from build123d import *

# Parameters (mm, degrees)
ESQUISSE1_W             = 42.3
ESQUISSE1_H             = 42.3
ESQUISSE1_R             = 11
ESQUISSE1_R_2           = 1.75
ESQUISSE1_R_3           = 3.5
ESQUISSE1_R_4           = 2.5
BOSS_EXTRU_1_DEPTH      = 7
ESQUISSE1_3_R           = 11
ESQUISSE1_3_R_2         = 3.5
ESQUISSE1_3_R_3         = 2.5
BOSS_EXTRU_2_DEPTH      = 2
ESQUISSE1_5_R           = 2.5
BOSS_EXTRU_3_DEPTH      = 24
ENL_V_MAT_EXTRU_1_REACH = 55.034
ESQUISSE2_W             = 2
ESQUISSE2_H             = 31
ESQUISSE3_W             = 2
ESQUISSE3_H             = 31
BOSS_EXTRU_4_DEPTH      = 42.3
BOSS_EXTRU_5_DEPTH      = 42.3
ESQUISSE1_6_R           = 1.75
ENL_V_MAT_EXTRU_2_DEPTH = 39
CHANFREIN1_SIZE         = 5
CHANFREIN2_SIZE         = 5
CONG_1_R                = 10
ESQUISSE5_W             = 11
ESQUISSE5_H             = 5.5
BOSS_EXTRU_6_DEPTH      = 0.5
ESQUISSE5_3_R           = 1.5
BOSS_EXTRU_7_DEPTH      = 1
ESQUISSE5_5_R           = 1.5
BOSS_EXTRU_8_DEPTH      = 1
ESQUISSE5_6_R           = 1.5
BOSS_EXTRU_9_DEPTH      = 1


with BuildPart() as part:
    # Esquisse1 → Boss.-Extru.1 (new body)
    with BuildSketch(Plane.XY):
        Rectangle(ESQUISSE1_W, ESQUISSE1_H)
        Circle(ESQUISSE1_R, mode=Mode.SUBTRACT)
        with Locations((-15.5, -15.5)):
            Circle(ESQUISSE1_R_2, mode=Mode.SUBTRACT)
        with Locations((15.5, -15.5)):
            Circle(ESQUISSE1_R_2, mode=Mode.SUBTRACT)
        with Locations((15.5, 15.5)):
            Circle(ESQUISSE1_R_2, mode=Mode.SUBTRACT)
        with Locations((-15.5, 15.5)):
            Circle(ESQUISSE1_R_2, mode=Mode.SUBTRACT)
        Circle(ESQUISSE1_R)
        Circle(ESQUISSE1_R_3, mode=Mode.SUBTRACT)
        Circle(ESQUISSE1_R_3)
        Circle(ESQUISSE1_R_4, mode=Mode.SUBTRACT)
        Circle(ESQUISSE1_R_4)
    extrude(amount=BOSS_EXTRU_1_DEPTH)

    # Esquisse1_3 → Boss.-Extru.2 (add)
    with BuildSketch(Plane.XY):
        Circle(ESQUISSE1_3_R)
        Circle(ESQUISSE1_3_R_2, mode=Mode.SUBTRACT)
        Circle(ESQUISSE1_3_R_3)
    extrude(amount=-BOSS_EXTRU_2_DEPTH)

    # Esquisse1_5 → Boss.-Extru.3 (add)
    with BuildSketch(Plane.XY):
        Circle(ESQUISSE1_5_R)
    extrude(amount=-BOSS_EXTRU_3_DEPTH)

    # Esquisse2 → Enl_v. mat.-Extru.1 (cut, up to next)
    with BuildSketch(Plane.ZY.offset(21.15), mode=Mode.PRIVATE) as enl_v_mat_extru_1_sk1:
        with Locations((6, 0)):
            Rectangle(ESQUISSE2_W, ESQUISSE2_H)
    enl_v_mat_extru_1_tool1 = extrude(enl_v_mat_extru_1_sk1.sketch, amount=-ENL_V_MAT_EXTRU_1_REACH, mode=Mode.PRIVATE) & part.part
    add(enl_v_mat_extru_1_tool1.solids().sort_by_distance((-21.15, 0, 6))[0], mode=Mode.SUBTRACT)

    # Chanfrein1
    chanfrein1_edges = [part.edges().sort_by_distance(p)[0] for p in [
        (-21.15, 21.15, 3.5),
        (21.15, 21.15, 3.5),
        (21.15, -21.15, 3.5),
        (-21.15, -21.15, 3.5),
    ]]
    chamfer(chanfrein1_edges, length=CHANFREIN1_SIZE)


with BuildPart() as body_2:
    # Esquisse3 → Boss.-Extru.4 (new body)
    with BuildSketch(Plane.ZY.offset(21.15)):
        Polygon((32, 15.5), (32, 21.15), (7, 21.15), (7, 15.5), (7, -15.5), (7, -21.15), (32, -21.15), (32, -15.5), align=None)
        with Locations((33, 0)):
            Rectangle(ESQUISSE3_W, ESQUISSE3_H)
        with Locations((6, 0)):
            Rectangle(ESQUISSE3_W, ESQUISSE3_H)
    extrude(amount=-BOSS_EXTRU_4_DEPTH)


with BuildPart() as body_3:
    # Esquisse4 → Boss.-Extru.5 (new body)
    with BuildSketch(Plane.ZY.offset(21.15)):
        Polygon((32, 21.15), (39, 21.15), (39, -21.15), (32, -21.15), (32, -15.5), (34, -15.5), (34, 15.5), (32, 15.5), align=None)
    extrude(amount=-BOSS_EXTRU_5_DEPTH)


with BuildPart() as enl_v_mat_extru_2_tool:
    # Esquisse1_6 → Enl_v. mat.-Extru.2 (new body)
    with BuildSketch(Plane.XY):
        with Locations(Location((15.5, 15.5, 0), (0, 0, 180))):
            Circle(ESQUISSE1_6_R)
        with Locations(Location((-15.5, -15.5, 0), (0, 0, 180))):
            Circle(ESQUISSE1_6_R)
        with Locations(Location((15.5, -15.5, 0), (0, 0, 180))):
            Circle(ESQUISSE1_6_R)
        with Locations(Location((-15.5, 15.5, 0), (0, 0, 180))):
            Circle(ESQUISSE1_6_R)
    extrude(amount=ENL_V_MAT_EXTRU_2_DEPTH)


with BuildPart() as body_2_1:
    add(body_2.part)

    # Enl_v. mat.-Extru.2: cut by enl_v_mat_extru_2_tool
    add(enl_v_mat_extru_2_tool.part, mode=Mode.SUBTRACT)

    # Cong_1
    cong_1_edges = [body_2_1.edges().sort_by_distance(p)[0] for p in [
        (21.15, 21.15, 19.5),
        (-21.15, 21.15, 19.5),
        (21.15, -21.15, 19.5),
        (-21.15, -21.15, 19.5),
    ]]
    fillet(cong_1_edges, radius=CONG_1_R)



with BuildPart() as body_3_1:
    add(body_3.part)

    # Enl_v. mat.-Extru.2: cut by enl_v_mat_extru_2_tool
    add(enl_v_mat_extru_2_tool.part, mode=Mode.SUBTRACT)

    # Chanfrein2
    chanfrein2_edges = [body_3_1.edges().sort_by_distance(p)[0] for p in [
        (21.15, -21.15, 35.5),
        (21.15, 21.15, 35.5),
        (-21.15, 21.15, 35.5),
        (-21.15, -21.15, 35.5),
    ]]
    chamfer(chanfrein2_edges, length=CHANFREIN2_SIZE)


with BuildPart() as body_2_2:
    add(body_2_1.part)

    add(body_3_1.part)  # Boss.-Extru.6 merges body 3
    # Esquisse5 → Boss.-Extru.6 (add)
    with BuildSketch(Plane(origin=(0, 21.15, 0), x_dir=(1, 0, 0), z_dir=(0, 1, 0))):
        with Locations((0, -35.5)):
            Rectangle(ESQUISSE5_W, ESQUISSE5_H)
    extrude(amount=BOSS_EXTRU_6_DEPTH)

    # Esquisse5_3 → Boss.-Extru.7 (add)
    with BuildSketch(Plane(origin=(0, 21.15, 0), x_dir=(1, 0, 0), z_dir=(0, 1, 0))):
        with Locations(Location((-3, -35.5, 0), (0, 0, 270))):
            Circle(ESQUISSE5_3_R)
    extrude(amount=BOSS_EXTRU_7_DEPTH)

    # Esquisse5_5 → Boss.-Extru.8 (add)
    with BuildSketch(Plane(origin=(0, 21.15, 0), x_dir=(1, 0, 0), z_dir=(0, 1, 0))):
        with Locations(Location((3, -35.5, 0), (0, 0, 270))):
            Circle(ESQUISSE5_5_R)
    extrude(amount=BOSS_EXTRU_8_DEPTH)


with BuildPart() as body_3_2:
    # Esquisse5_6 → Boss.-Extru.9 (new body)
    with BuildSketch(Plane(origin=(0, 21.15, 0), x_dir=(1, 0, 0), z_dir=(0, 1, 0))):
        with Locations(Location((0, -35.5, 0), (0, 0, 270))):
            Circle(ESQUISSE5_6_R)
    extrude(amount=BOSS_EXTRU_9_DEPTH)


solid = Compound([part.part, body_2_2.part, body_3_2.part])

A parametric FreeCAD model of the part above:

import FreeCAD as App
import Part
import Sketcher
from FreeCAD import Vector
Q = App.Units.Quantity


def edges_at(feature, points):
    """Names of the edges that pass closest to the given points."""
    edges = feature.Shape.Edges
    near = lambda p: min(range(len(edges)), key=lambda i: edges[i].distToShape(Part.Vertex(*p))[0])
    return sorted({f"Edge{near(p) + 1}" for p in points})

doc = App.newDocument("Part")
params = doc.addObject("Spreadsheet::Sheet", "Params")
for row, (alias, value) in enumerate([
    ("sketch1_diameter", "3.5 mm"),
    ("sketch1_width", "42.3 mm"),
    ("pad1_length", "7 mm"),
    ("sketch2_diameter", "22 mm"),
    ("sketch2_diameter2", "7 mm"),
    ("sketch2_diameter3", "5 mm"),
    ("pad2_length", "2 mm"),
    ("sketch3_diameter", "5 mm"),
    ("pad3_length", "24 mm"),
    ("sketch4_width", "31 mm"),
    ("sketch4_height", "2 mm"),
    ("chamfer_size", "5 mm"),
    ("sketch5_width", "31 mm"),
    ("sketch5_height", "25 mm"),
    ("sketch5_height2", "2 mm"),
    ("sketch5_width2", "5.65 mm"),
    ("pad4_length", "42.3 mm"),
    ("sketch6_width", "31 mm"),
    ("sketch6_height", "7 mm"),
    ("sketch6_height2", "2 mm"),
    ("sketch6_width2", "42.3 mm"),
    ("pad5_length", "42.3 mm"),
    ("sketch7_diameter", "3.5 mm"),
    ("pad6_length", "39 mm"),
    ("fillet_radius", "10 mm"),
    ("chamfer2_size", "5 mm"),
    ("sketch8_width", "11 mm"),
    ("sketch8_height", "5.5 mm"),
    ("pad7_length", "0.5 mm"),
    ("sketch9_diameter", "3 mm"),
    ("pad8_length", "1 mm"),
    ("sketch10_diameter", "3 mm"),
    ("pad9_length", "1 mm"),
    ("sketch11_diameter", "3 mm"),
    ("pad10_length", "1 mm"),
], start=1):
    params.set(f"A{row}", alias)
    params.set(f"B{row}", "=" + value)
    params.setAlias(f"B{row}", alias)

body = doc.addObject("PartDesign::Body", "Body")

sketch1 = doc.addObject("Sketcher::SketchObject", "Sketch")
body.addObject(sketch1)
sketch1.AttachmentSupport = (doc.XY_Plane, [""])
sketch1.MapMode = "FlatFace"
sketch1.addGeometry(Part.LineSegment(Vector(-21.1, 21.1, 0), Vector(-21.1, -21.1, 0)), False)
sketch1.addGeometry(Part.LineSegment(Vector(-21.1, -21.1, 0), Vector(21.1, -21.1, 0)), False)
sketch1.addGeometry(Part.LineSegment(Vector(21.1, -21.1, 0), Vector(21.1, 21.1, 0)), False)
sketch1.addGeometry(Part.LineSegment(Vector(21.1, 21.1, 0), Vector(-21.1, 21.1, 0)), False)
sketch1.addGeometry(Part.Circle(Vector(-15.5, -15.5, 0), Vector(0, 0, 1), 1.8), False)
sketch1.addGeometry(Part.Circle(Vector(15.5, -15.5, 0), Vector(0, 0, 1), 1.8), False)
sketch1.addGeometry(Part.Circle(Vector(-15.5, 15.5, 0), Vector(0, 0, 1), 1.8), False)
sketch1.addGeometry(Part.Circle(Vector(15.5, 15.5, 0), Vector(0, 0, 1), 1.8), False)
sketch1.addConstraint(Sketcher.Constraint("Coincident", 0, 2, 1, 1))
sketch1.addConstraint(Sketcher.Constraint("Coincident", 1, 2, 2, 1))
sketch1.addConstraint(Sketcher.Constraint("Coincident", 2, 2, 3, 1))
sketch1.addConstraint(Sketcher.Constraint("Coincident", 3, 2, 0, 1))
sketch1.addConstraint(Sketcher.Constraint("Vertical", 0))
sketch1.addConstraint(Sketcher.Constraint("Horizontal", 1))
sketch1.addConstraint(Sketcher.Constraint("Vertical", 2))
sketch1.addConstraint(Sketcher.Constraint("Horizontal", 3))
sketch1.addConstraint(Sketcher.Constraint("Equal", 4, 5))
sketch1.addConstraint(Sketcher.Constraint("Equal", 5, 6))
sketch1.addConstraint(Sketcher.Constraint("Equal", 6, 7))
sketch1.addConstraint(Sketcher.Constraint("Symmetric", 5, 3, 6, 3, -1, 1))
sketch1.addConstraint(Sketcher.Constraint("Symmetric", 4, 3, 7, 3, -1, 1))
sketch1.addConstraint(Sketcher.Constraint("Symmetric", 0, 2, 2, 2, -1, 1))
sketch1.addConstraint(Sketcher.Constraint("Symmetric", 4, 3, 5, 3, -2))
sketch1.addConstraint(Sketcher.Constraint("Equal", 3, 0))
sketch1.addConstraint(Sketcher.Constraint("Diameter", 4, Q("3.5 mm")))
sketch1.addConstraint(Sketcher.Constraint("DistanceX", 1, 1, 1, 2, Q("42.3 mm")))
sketch1.addConstraint(Sketcher.Constraint("DistanceX", 4, 3, 5, 3, Q("31 mm")))
sketch1.addConstraint(Sketcher.Constraint("DistanceY", 4, 3, 6, 3, Q("31 mm")))
sketch1.setExpression("Constraints[16]", "Params.sketch1_diameter")
sketch1.setExpression("Constraints[17]", "Params.sketch1_width")
pad1 = doc.addObject("PartDesign::Pad", "Pad")
body.addObject(pad1)
pad1.Profile = sketch1
pad1.setExpression("Length", "Params.pad1_length")

sketch2 = doc.addObject("Sketcher::SketchObject", "Sketch001")
body.addObject(sketch2)
sketch2.AttachmentSupport = (doc.XY_Plane, [""])
sketch2.MapMode = "FlatFace"
sketch2.addGeometry(Part.Circle(Vector(0, 0, 0), Vector(0, 0, 1), 11), False)
sketch2.addGeometry(Part.Circle(Vector(0, 0, 0), Vector(0, 0, 1), 3.5), False)
sketch2.addGeometry(Part.Circle(Vector(0, 0, 0), Vector(0, 0, 1), 2.5), False)
sketch2.addConstraint(Sketcher.Constraint("Coincident", 0, 3, -1, 1))
sketch2.addConstraint(Sketcher.Constraint("Coincident", 1, 3, -1, 1))
sketch2.addConstraint(Sketcher.Constraint("Coincident", 2, 3, -1, 1))
sketch2.addConstraint(Sketcher.Constraint("Diameter", 0, Q("22 mm")))
sketch2.addConstraint(Sketcher.Constraint("Diameter", 1, Q("7 mm")))
sketch2.addConstraint(Sketcher.Constraint("Diameter", 2, Q("5 mm")))
sketch2.setExpression("Constraints[3]", "Params.sketch2_diameter")
sketch2.setExpression("Constraints[4]", "Params.sketch2_diameter2")
sketch2.setExpression("Constraints[5]", "Params.sketch2_diameter3")
pad2 = doc.addObject("PartDesign::Pad", "Pad001")
body.addObject(pad2)
pad2.Profile = sketch2
pad2.setExpression("Length", "Params.pad2_length")
pad2.Reversed = True

sketch3 = doc.addObject("Sketcher::SketchObject", "Sketch002")
body.addObject(sketch3)
sketch3.AttachmentSupport = (doc.XY_Plane, [""])
sketch3.MapMode = "FlatFace"
sketch3.addGeometry(Part.Circle(Vector(0, 0, 0), Vector(0, 0, 1), 2.5), False)
sketch3.addConstraint(Sketcher.Constraint("Coincident", 0, 3, -1, 1))
sketch3.addConstraint(Sketcher.Constraint("Diameter", 0, Q("5 mm")))
sketch3.setExpression("Constraints[1]", "Params.sketch3_diameter")
pad3 = doc.addObject("PartDesign::Pad", "Pad002")
body.addObject(pad3)
pad3.Profile = sketch3
pad3.setExpression("Length", "Params.pad3_length")
pad3.Reversed = True

sketch4 = doc.addObject("Sketcher::SketchObject", "Sketch003")
body.addObject(sketch4)
sketch4.AttachmentSupport = (doc.YZ_Plane, [""])
sketch4.MapMode = "FlatFace"
sketch4.AttachmentOffset = App.Placement(Vector(0, 0, -21.15), App.Rotation())
sketch4.addGeometry(Part.LineSegment(Vector(15.5, 5, 0), Vector(-15.5, 5, 0)), False)
sketch4.addGeometry(Part.LineSegment(Vector(-15.5, 5, 0), Vector(-15.5, 7, 0)), False)
sketch4.addGeometry(Part.LineSegment(Vector(-15.5, 7, 0), Vector(15.5, 7, 0)), False)
sketch4.addGeometry(Part.LineSegment(Vector(15.5, 7, 0), Vector(15.5, 5, 0)), False)
sketch4.addConstraint(Sketcher.Constraint("Coincident", 0, 2, 1, 1))
sketch4.addConstraint(Sketcher.Constraint("Coincident", 1, 2, 2, 1))
sketch4.addConstraint(Sketcher.Constraint("Coincident", 2, 2, 3, 1))
sketch4.addConstraint(Sketcher.Constraint("Coincident", 3, 2, 0, 1))
sketch4.addConstraint(Sketcher.Constraint("Horizontal", 0))
sketch4.addConstraint(Sketcher.Constraint("Vertical", 1))
sketch4.addConstraint(Sketcher.Constraint("Horizontal", 2))
sketch4.addConstraint(Sketcher.Constraint("Vertical", 3))
sketch4.addConstraint(Sketcher.Constraint("DistanceX", 0, 2, 0, 1, Q("31 mm")))
sketch4.addConstraint(Sketcher.Constraint("DistanceY", 1, 1, 1, 2, Q("2 mm")))
sketch4.addConstraint(Sketcher.Constraint("DistanceY", -1, 1, 0, 2, Q("5 mm")))
sketch4.addConstraint(Sketcher.Constraint("DistanceX", 0, 2, -1, 1, Q("15.5 mm")))
sketch4.setExpression("Constraints[8]", "Params.sketch4_width")
sketch4.setExpression("Constraints[9]", "Params.sketch4_height")
pocket1 = doc.addObject("PartDesign::Pocket", "Pocket")
body.addObject(pocket1)
pocket1.Profile = sketch4
pocket1.Type = "UpToFirst"
pocket1.Reversed = True
doc.recompute()

chamfer = doc.addObject("PartDesign::Chamfer", "Chamfer")
body.addObject(chamfer)
chamfer.Base = (pocket1, edges_at(pocket1, [
    (-21.15, 21.15, 3.5),
    (21.15, 21.15, 3.5),
    (21.15, -21.15, 3.5),
    (-21.15, -21.15, 3.5),
]))
chamfer.setExpression("Size", "Params.chamfer_size")
body2 = doc.addObject("PartDesign::Body", "Body001")

sketch5 = doc.addObject("Sketcher::SketchObject", "Sketch004")
body2.addObject(sketch5)
sketch5.AttachmentSupport = (doc.getObject("YZ_Plane001"), [""])
sketch5.MapMode = "FlatFace"
sketch5.AttachmentOffset = App.Placement(Vector(0, 0, -21.15), App.Rotation())
sketch5.addGeometry(Part.LineSegment(Vector(21.1, 32, 0), Vector(21.1, 7, 0)), False)
sketch5.addGeometry(Part.LineSegment(Vector(21.1, 7, 0), Vector(15.5, 7, 0)), False)
sketch5.addGeometry(Part.LineSegment(Vector(15.5, 7, 0), Vector(15.5, 5, 0)), False)
sketch5.addGeometry(Part.LineSegment(Vector(15.5, 5, 0), Vector(-15.5, 5, 0)), False)
sketch5.addGeometry(Part.LineSegment(Vector(-15.5, 5, 0), Vector(-15.5, 7, 0)), False)
sketch5.addGeometry(Part.LineSegment(Vector(-15.5, 7, 0), Vector(-21.1, 7, 0)), False)
sketch5.addGeometry(Part.LineSegment(Vector(-21.1, 7, 0), Vector(-21.1, 32, 0)), False)
sketch5.addGeometry(Part.LineSegment(Vector(-21.1, 32, 0), Vector(-15.5, 32, 0)), False)
sketch5.addGeometry(Part.LineSegment(Vector(-15.5, 32, 0), Vector(-15.5, 34, 0)), False)
sketch5.addGeometry(Part.LineSegment(Vector(-15.5, 34, 0), Vector(15.5, 34, 0)), False)
sketch5.addGeometry(Part.LineSegment(Vector(15.5, 34, 0), Vector(15.5, 32, 0)), False)
sketch5.addGeometry(Part.LineSegment(Vector(15.5, 32, 0), Vector(21.1, 32, 0)), False)
sketch5.addConstraint(Sketcher.Constraint("Coincident", 0, 2, 1, 1))
sketch5.addConstraint(Sketcher.Constraint("Coincident", 1, 2, 2, 1))
sketch5.addConstraint(Sketcher.Constraint("Coincident", 2, 2, 3, 1))
sketch5.addConstraint(Sketcher.Constraint("Coincident", 3, 2, 4, 1))
sketch5.addConstraint(Sketcher.Constraint("Coincident", 4, 2, 5, 1))
sketch5.addConstraint(Sketcher.Constraint("Coincident", 5, 2, 6, 1))
sketch5.addConstraint(Sketcher.Constraint("Coincident", 6, 2, 7, 1))
sketch5.addConstraint(Sketcher.Constraint("Coincident", 7, 2, 8, 1))
sketch5.addConstraint(Sketcher.Constraint("Coincident", 8, 2, 9, 1))
sketch5.addConstraint(Sketcher.Constraint("Coincident", 9, 2, 10, 1))
sketch5.addConstraint(Sketcher.Constraint("Coincident", 10, 2, 11, 1))
sketch5.addConstraint(Sketcher.Constraint("Coincident", 11, 2, 0, 1))
sketch5.addConstraint(Sketcher.Constraint("Vertical", 0))
sketch5.addConstraint(Sketcher.Constraint("Horizontal", 1))
sketch5.addConstraint(Sketcher.Constraint("Vertical", 2))
sketch5.addConstraint(Sketcher.Constraint("Horizontal", 3))
sketch5.addConstraint(Sketcher.Constraint("Vertical", 4))
sketch5.addConstraint(Sketcher.Constraint("Horizontal", 5))
sketch5.addConstraint(Sketcher.Constraint("Vertical", 6))
sketch5.addConstraint(Sketcher.Constraint("Horizontal", 7))
sketch5.addConstraint(Sketcher.Constraint("Vertical", 8))
sketch5.addConstraint(Sketcher.Constraint("Horizontal", 9))
sketch5.addConstraint(Sketcher.Constraint("Vertical", 10))
sketch5.addConstraint(Sketcher.Constraint("Horizontal", 11))
sketch5.addConstraint(Sketcher.Constraint("Symmetric", 1, 2, 4, 2, -2))
sketch5.addConstraint(Sketcher.Constraint("Symmetric", 7, 2, 10, 2, -2))
sketch5.addConstraint(Sketcher.Constraint("Vertical", 4, 2, 7, 2))
sketch5.addConstraint(Sketcher.Constraint("Equal", 1, 5))
sketch5.addConstraint(Sketcher.Constraint("Equal", 4, 8))
sketch5.addConstraint(Sketcher.Constraint("DistanceX", 3, 2, 3, 1, Q("31 mm")))
sketch5.addConstraint(Sketcher.Constraint("DistanceY", 0, 2, 0, 1, Q("25 mm")))
sketch5.addConstraint(Sketcher.Constraint("DistanceY", 2, 2, 2, 1, Q("2 mm")))
sketch5.addConstraint(Sketcher.Constraint("DistanceY", -1, 1, 0, 2, Q("7 mm")))
sketch5.addConstraint(Sketcher.Constraint("DistanceX", 1, 2, 1, 1, Q("5.65 mm")))
sketch5.setExpression("Constraints[29]", "Params.sketch5_width")
sketch5.setExpression("Constraints[30]", "Params.sketch5_height")
sketch5.setExpression("Constraints[31]", "Params.sketch5_height2")
sketch5.setExpression("Constraints[33]", "Params.sketch5_width2")
pad4 = doc.addObject("PartDesign::Pad", "Pad003")
body2.addObject(pad4)
pad4.Profile = sketch5
pad4.setExpression("Length", "Params.pad4_length")
body3 = doc.addObject("PartDesign::Body", "Body002")

sketch6 = doc.addObject("Sketcher::SketchObject", "Sketch005")
body3.addObject(sketch6)
sketch6.AttachmentSupport = (doc.getObject("YZ_Plane002"), [""])
sketch6.MapMode = "FlatFace"
sketch6.AttachmentOffset = App.Placement(Vector(0, 0, -21.15), App.Rotation())
sketch6.addGeometry(Part.LineSegment(Vector(21.1, 39, 0), Vector(21.1, 32, 0)), False)
sketch6.addGeometry(Part.LineSegment(Vector(21.1, 32, 0), Vector(15.5, 32, 0)), False)
sketch6.addGeometry(Part.LineSegment(Vector(15.5, 32, 0), Vector(15.5, 34, 0)), False)
sketch6.addGeometry(Part.LineSegment(Vector(15.5, 34, 0), Vector(-15.5, 34, 0)), False)
sketch6.addGeometry(Part.LineSegment(Vector(-15.5, 34, 0), Vector(-15.5, 32, 0)), False)
sketch6.addGeometry(Part.LineSegment(Vector(-15.5, 32, 0), Vector(-21.1, 32, 0)), False)
sketch6.addGeometry(Part.LineSegment(Vector(-21.1, 32, 0), Vector(-21.1, 39, 0)), False)
sketch6.addGeometry(Part.LineSegment(Vector(-21.1, 39, 0), Vector(21.1, 39, 0)), False)
sketch6.addConstraint(Sketcher.Constraint("Coincident", 0, 2, 1, 1))
sketch6.addConstraint(Sketcher.Constraint("Coincident", 1, 2, 2, 1))
sketch6.addConstraint(Sketcher.Constraint("Coincident", 2, 2, 3, 1))
sketch6.addConstraint(Sketcher.Constraint("Coincident", 3, 2, 4, 1))
sketch6.addConstraint(Sketcher.Constraint("Coincident", 4, 2, 5, 1))
sketch6.addConstraint(Sketcher.Constraint("Coincident", 5, 2, 6, 1))
sketch6.addConstraint(Sketcher.Constraint("Coincident", 6, 2, 7, 1))
sketch6.addConstraint(Sketcher.Constraint("Coincident", 7, 2, 0, 1))
sketch6.addConstraint(Sketcher.Constraint("Vertical", 0))
sketch6.addConstraint(Sketcher.Constraint("Horizontal", 1))
sketch6.addConstraint(Sketcher.Constraint("Vertical", 2))
sketch6.addConstraint(Sketcher.Constraint("Horizontal", 3))
sketch6.addConstraint(Sketcher.Constraint("Vertical", 4))
sketch6.addConstraint(Sketcher.Constraint("Horizontal", 5))
sketch6.addConstraint(Sketcher.Constraint("Vertical", 6))
sketch6.addConstraint(Sketcher.Constraint("Horizontal", 7))
sketch6.addConstraint(Sketcher.Constraint("Symmetric", 1, 2, 4, 2, -2))
sketch6.addConstraint(Sketcher.Constraint("Equal", 1, 5))
sketch6.addConstraint(Sketcher.Constraint("DistanceX", 3, 2, 3, 1, Q("31 mm")))
sketch6.addConstraint(Sketcher.Constraint("DistanceY", 0, 2, 0, 1, Q("7 mm")))
sketch6.addConstraint(Sketcher.Constraint("DistanceY", 2, 1, 2, 2, Q("2 mm")))
sketch6.addConstraint(Sketcher.Constraint("DistanceX", 7, 1, 7, 2, Q("42.3 mm")))
sketch6.addConstraint(Sketcher.Constraint("DistanceY", -1, 1, 0, 2, Q("32 mm")))
sketch6.setExpression("Constraints[18]", "Params.sketch6_width")
sketch6.setExpression("Constraints[19]", "Params.sketch6_height")
sketch6.setExpression("Constraints[20]", "Params.sketch6_height2")
sketch6.setExpression("Constraints[21]", "Params.sketch6_width2")
pad5 = doc.addObject("PartDesign::Pad", "Pad004")
body3.addObject(pad5)
pad5.Profile = sketch6
pad5.setExpression("Length", "Params.pad5_length")
body4 = doc.addObject("PartDesign::Body", "Body003")
body4.AllowCompound = True

sketch7 = doc.addObject("Sketcher::SketchObject", "Sketch006")
body4.addObject(sketch7)
sketch7.AttachmentSupport = (doc.getObject("XY_Plane003"), [""])
sketch7.MapMode = "FlatFace"
sketch7.addGeometry(Part.Circle(Vector(15.5, 15.5, 0), Vector(0, 0, 1), 1.8), False)
sketch7.addGeometry(Part.Circle(Vector(-15.5, -15.5, 0), Vector(0, 0, 1), 1.8), False)
sketch7.addGeometry(Part.Circle(Vector(15.5, -15.5, 0), Vector(0, 0, 1), 1.8), False)
sketch7.addGeometry(Part.Circle(Vector(-15.5, 15.5, 0), Vector(0, 0, 1), 1.8), False)
sketch7.addConstraint(Sketcher.Constraint("Equal", 0, 1))
sketch7.addConstraint(Sketcher.Constraint("Equal", 1, 2))
sketch7.addConstraint(Sketcher.Constraint("Equal", 2, 3))
sketch7.addConstraint(Sketcher.Constraint("Symmetric", 0, 3, 1, 3, -1, 1))
sketch7.addConstraint(Sketcher.Constraint("Symmetric", 2, 3, 3, 3, -1, 1))
sketch7.addConstraint(Sketcher.Constraint("Symmetric", 1, 3, 2, 3, -2))
sketch7.addConstraint(Sketcher.Constraint("Diameter", 0, Q("3.5 mm")))
sketch7.addConstraint(Sketcher.Constraint("DistanceX", 1, 3, 0, 3, Q("31 mm")))
sketch7.addConstraint(Sketcher.Constraint("DistanceY", 1, 3, 0, 3, Q("31 mm")))
sketch7.setExpression("Constraints[6]", "Params.sketch7_diameter")
pad6 = doc.addObject("PartDesign::Pad", "Pad005")
body4.addObject(pad6)
pad6.Profile = sketch7
pad6.setExpression("Length", "Params.pad6_length")
doc.recompute()

body5 = doc.addObject("PartDesign::Body", "Body004")
body5.BaseFeature = body4
boolean = doc.addObject("PartDesign::Boolean", "Boolean")
body2.addObject(boolean)
boolean.Type = "Cut"
boolean.addObjects([body5])
doc.recompute()

fillet = doc.addObject("PartDesign::Fillet", "Fillet")
body2.addObject(fillet)
fillet.Base = (boolean, edges_at(boolean, [
    (21.15, 21.15, 19.5),
    (-21.15, 21.15, 19.5),
    (21.15, -21.15, 19.5),
    (-21.15, -21.15, 19.5),
]))
fillet.setExpression("Radius", "Params.fillet_radius")
doc.recompute()

boolean2 = doc.addObject("PartDesign::Boolean", "Boolean001")
body3.addObject(boolean2)
boolean2.Type = "Cut"
boolean2.addObjects([body4])
doc.recompute()

chamfer2 = doc.addObject("PartDesign::Chamfer", "Chamfer001")
body3.addObject(chamfer2)
chamfer2.Base = (boolean2, edges_at(boolean2, [
    (21.15, -21.15, 35.5),
    (21.15, 21.15, 35.5),
    (-21.15, 21.15, 35.5),
    (-21.15, -21.15, 35.5),
]))
chamfer2.setExpression("Size", "Params.chamfer2_size")
doc.recompute()

boolean3 = doc.addObject("PartDesign::Boolean", "Boolean002")
body2.addObject(boolean3)
boolean3.Type = "Fuse"
boolean3.addObjects([body3])

sketch8 = doc.addObject("Sketcher::SketchObject", "Sketch007")
body2.addObject(sketch8)
sketch8.AttachmentSupport = (doc.getObject("XZ_Plane001"), [""])
sketch8.MapMode = "FlatFace"
sketch8.AttachmentOffset = App.Placement(Vector(0, 0, -21.15), App.Rotation())
sketch8.addGeometry(Part.LineSegment(Vector(-6, 33, 0), Vector(-6, 38, 0)), False)
sketch8.addGeometry(Part.LineSegment(Vector(-6, 38, 0), Vector(6, 38, 0)), False)
sketch8.addGeometry(Part.LineSegment(Vector(6, 38, 0), Vector(6, 33, 0)), False)
sketch8.addGeometry(Part.LineSegment(Vector(6, 33, 0), Vector(-6, 33, 0)), False)
sketch8.addConstraint(Sketcher.Constraint("Coincident", 0, 2, 1, 1))
sketch8.addConstraint(Sketcher.Constraint("Coincident", 1, 2, 2, 1))
sketch8.addConstraint(Sketcher.Constraint("Coincident", 2, 2, 3, 1))
sketch8.addConstraint(Sketcher.Constraint("Coincident", 3, 2, 0, 1))
sketch8.addConstraint(Sketcher.Constraint("Vertical", 0))
sketch8.addConstraint(Sketcher.Constraint("Horizontal", 1))
sketch8.addConstraint(Sketcher.Constraint("Vertical", 2))
sketch8.addConstraint(Sketcher.Constraint("Horizontal", 3))
sketch8.addConstraint(Sketcher.Constraint("DistanceX", 1, 1, 1, 2, Q("11 mm")))
sketch8.addConstraint(Sketcher.Constraint("DistanceY", 0, 1, 0, 2, Q("5.5 mm")))
sketch8.addConstraint(Sketcher.Constraint("DistanceX", 0, 2, -1, 1, Q("5.5 mm")))
sketch8.addConstraint(Sketcher.Constraint("DistanceY", -1, 1, 0, 2, Q("38.25 mm")))
sketch8.setExpression("Constraints[8]", "Params.sketch8_width")
sketch8.setExpression("Constraints[9]", "Params.sketch8_height")
pad7 = doc.addObject("PartDesign::Pad", "Pad006")
body2.addObject(pad7)
pad7.Profile = sketch8
pad7.setExpression("Length", "Params.pad7_length")
pad7.Reversed = True

sketch9 = doc.addObject("Sketcher::SketchObject", "Sketch008")
body2.addObject(sketch9)
sketch9.AttachmentSupport = (doc.getObject("XZ_Plane001"), [""])
sketch9.MapMode = "FlatFace"
sketch9.AttachmentOffset = App.Placement(Vector(0, 0, -21.15), App.Rotation())
sketch9.addGeometry(Part.Circle(Vector(-3, 35.5, 0), Vector(0, 0, 1), 1.5), False)
sketch9.addConstraint(Sketcher.Constraint("Diameter", 0, Q("3 mm")))
sketch9.addConstraint(Sketcher.Constraint("DistanceX", 0, 3, -1, 1, Q("3 mm")))
sketch9.addConstraint(Sketcher.Constraint("DistanceY", -1, 1, 0, 3, Q("35.5 mm")))
sketch9.setExpression("Constraints[0]", "Params.sketch9_diameter")
pad8 = doc.addObject("PartDesign::Pad", "Pad007")
body2.addObject(pad8)
pad8.Profile = sketch9
pad8.setExpression("Length", "Params.pad8_length")
pad8.Reversed = True

sketch10 = doc.addObject("Sketcher::SketchObject", "Sketch009")
body2.addObject(sketch10)
sketch10.AttachmentSupport = (doc.getObject("XZ_Plane001"), [""])
sketch10.MapMode = "FlatFace"
sketch10.AttachmentOffset = App.Placement(Vector(0, 0, -21.15), App.Rotation())
sketch10.addGeometry(Part.Circle(Vector(3, 35.5, 0), Vector(0, 0, 1), 1.5), False)
sketch10.addConstraint(Sketcher.Constraint("Diameter", 0, Q("3 mm")))
sketch10.addConstraint(Sketcher.Constraint("DistanceX", -1, 1, 0, 3, Q("3 mm")))
sketch10.addConstraint(Sketcher.Constraint("DistanceY", -1, 1, 0, 3, Q("35.5 mm")))
sketch10.setExpression("Constraints[0]", "Params.sketch10_diameter")
pad9 = doc.addObject("PartDesign::Pad", "Pad008")
body2.addObject(pad9)
pad9.Profile = sketch10
pad9.setExpression("Length", "Params.pad9_length")
pad9.Reversed = True
body6 = doc.addObject("PartDesign::Body", "Body005")

sketch11 = doc.addObject("Sketcher::SketchObject", "Sketch010")
body6.addObject(sketch11)
sketch11.AttachmentSupport = (doc.getObject("XZ_Plane005"), [""])
sketch11.MapMode = "FlatFace"
sketch11.AttachmentOffset = App.Placement(Vector(0, 0, -21.15), App.Rotation())
sketch11.addGeometry(Part.Circle(Vector(0, 35.5, 0), Vector(0, 0, 1), 1.5), False)
sketch11.addConstraint(Sketcher.Constraint("PointOnObject", 0, 3, -2))
sketch11.addConstraint(Sketcher.Constraint("Diameter", 0, Q("3 mm")))
sketch11.addConstraint(Sketcher.Constraint("DistanceY", -1, 1, 0, 3, Q("35.5 mm")))
sketch11.setExpression("Constraints[1]", "Params.sketch11_diameter")
pad10 = doc.addObject("PartDesign::Pad", "Pad009")
body6.addObject(pad10)
pad10.Profile = sketch11
pad10.setExpression("Length", "Params.pad10_length")
pad10.Reversed = True

doc.recompute()
